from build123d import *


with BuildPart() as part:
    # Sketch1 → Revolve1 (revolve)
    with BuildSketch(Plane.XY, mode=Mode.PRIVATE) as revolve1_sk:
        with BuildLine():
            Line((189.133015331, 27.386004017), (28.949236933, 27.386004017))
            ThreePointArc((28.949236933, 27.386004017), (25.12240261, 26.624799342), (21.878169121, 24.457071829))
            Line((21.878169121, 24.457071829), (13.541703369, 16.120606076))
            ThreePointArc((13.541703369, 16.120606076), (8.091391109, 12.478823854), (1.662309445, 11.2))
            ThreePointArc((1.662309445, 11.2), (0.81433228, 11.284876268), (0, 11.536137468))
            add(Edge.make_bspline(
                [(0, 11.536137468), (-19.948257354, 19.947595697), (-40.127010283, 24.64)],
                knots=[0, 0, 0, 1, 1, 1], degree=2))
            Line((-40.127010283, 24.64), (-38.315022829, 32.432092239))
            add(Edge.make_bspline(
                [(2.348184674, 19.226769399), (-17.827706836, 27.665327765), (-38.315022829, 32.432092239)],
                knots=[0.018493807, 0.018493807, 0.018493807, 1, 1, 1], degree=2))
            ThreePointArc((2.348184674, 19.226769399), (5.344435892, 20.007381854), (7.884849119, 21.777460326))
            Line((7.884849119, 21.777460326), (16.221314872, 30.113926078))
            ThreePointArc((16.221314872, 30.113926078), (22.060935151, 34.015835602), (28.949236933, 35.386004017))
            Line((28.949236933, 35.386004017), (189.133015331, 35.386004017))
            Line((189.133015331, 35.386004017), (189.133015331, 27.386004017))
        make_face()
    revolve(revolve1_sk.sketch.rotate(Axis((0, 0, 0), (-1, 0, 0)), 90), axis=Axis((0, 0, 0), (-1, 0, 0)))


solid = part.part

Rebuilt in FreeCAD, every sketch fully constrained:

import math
import FreeCAD as App
import Part
import Sketcher
from FreeCAD import Vector
Q = App.Units.Quantity

doc = App.newDocument("Part")
body = doc.addObject("PartDesign::Body", "Body")

# Sketch on XY plane
sketch1 = body.newObject("Sketcher::SketchObject", "Sketch")
sketch1.AttachmentSupport = (doc.getObject("XY_Plane"), [""])
sketch1.MapMode = "FlatFace"
sketch1.addGeometry(Part.LineSegment(Vector(28.949237, 27.386004, 0), Vector(189.133015, 27.386004, 0)), False)
sketch1.addGeometry(Part.LineSegment(Vector(189.133015, 27.386004, 0), Vector(189.133015, 35.386004, 0)), False)
sketch1.addGeometry(Part.LineSegment(Vector(189.133015, 35.386004, 0), Vector(28.949237, 35.386004, 0)), False)
sketch1.addGeometry(Part.ArcOfCircle(Part.Circle(Vector(28.949237, 17.386004, 0), Vector(0, 0, 1), 18), math.radians(90), math.radians(135)), False)
sketch1.addGeometry(Part.LineSegment(Vector(16.221315, 30.113926, 0), Vector(7.884849, 21.77746, 0)), False)
sketch1.addGeometry(Part.ArcOfCircle(Part.Circle(Vector(1.662309, 28, 0), Vector(0, 0, 1), 8.8), math.radians(-85.529812), math.radians(-45)), False)
sketch1.addGeometry(Part.BSplineCurve([Vector(2.348185, 19.226769, 0), Vector(-17.827707, 27.665328, 0), Vector(-38.315023, 32.432092, 0)], [3, 3], [0.018493807, 1], False, 2, [1, 1, 1], False), False)
sketch1.addGeometry(Part.LineSegment(Vector(-38.315023, 32.432092, 0), Vector(-40.12701, 24.64, 0)), False)
sketch1.addGeometry(Part.BSplineCurve([Vector(0, 11.536137, 0), Vector(-19.948257, 19.947596, 0), Vector(-40.12701, 24.64, 0)], [3, 3], [0, 1], False, 2, [1, 1, 1], False), False)
sketch1.addGeometry(Part.ArcOfCircle(Part.Circle(Vector(1.662309, 15.4784, 0), Vector(0, 0, 1), 4.2784), math.radians(-112.863392), math.radians(-90)), False)
sketch1.addGeometry(Part.ArcOfCircle(Part.Circle(Vector(1.662309, 28, 0), Vector(0, 0, 1), 16.8), math.radians(-90), math.radians(-45)), False)
sketch1.addGeometry(Part.LineSegment(Vector(13.541703, 16.120606, 0), Vector(21.878169, 24.457072, 0)), False)
sketch1.addGeometry(Part.ArcOfCircle(Part.Circle(Vector(28.949237, 17.386004, 0), Vector(0, 0, 1), 10), math.radians(90), math.radians(135)), False)
sketch1.addConstraint(Sketcher.Constraint("Block", 6))
sketch1.addConstraint(Sketcher.Constraint("Block", 8))
sketch1.addConstraint(Sketcher.Constraint("Coincident", 0, 2, 1, 1))
sketch1.addConstraint(Sketcher.Constraint("Coincident", 1, 2, 2, 1))
sketch1.addConstraint(Sketcher.Constraint("Coincident", 2, 2, 3, 1))
sketch1.addConstraint(Sketcher.Constraint("Coincident", 3, 2, 4, 1))
sketch1.addConstraint(Sketcher.Constraint("Coincident", 4, 2, 5, 2))
sketch1.addConstraint(Sketcher.Constraint("Coincident", 5, 1, 6, 1))
sketch1.addConstraint(Sketcher.Constraint("Coincident", 6, 2, 7, 1))
sketch1.addConstraint(Sketcher.Constraint("Coincident", 7, 2, 8, 2))
sketch1.addConstraint(Sketcher.Constraint("Coincident", 8, 1, 9, 1))
sketch1.addConstraint(Sketcher.Constraint("Coincident", 9, 2, 10, 1))
sketch1.addConstraint(Sketcher.Constraint("Coincident", 10, 2, 11, 1))
sketch1.addConstraint(Sketcher.Constraint("Coincident", 11, 2, 12, 2))
sketch1.addConstraint(Sketcher.Constraint("Coincident", 12, 1, 0, 1))
sketch1.addConstraint(Sketcher.Constraint("Horizontal", 0))
sketch1.addConstraint(Sketcher.Constraint("Vertical", 1))
sketch1.addConstraint(Sketcher.Constraint("Horizontal", 2))
sketch1.addConstraint(Sketcher.Constraint("Coincident", 10, 3, 5, 3))
sketch1.addConstraint(Sketcher.Constraint("Coincident", 12, 3, 3, 3))
sketch1.addConstraint(Sketcher.Constraint("Radius", 3, Q("18 mm")))
sketch1.addConstraint(Sketcher.Constraint("Radius", 12, Q("10 mm")))
sketch1.addConstraint(Sketcher.Constraint("Radius", 5, Q("8.8 mm")))
sketch1.addConstraint(Sketcher.Constraint("Radius", 10, Q("16.8 mm")))
sketch1.addConstraint(Sketcher.Constraint("DistanceY", -1, 1, 5, 3, Q("28 mm")))
sketch1.addConstraint(Sketcher.Constraint("Radius", 9, Q("4.2784 mm")))
sketch1.addConstraint(Sketcher.Constraint("DistanceX", 0, 1, 0, 2, Q("160.183778 mm")))
sketch1.addConstraint(Sketcher.Constraint("DistanceX", 2, 2, 2, 1, Q("160.183778 mm")))
sketch1.addConstraint(Sketcher.Constraint("DistanceX", -1, 1, 4, 2, Q("7.884849 mm")))
sketch1.addConstraint(Sketcher.Constraint("DistanceX", -1, 1, 9, 2, Q("1.662309 mm")))
sketch1.addConstraint(Sketcher.Constraint("DistanceX", -1, 1, 11, 2, Q("21.878169 mm")))
sketch1.addConstraint(Sketcher.Constraint("DistanceY", -1, 1, 11, 2, Q("24.457072 mm")))
sketch1.addConstraint(Sketcher.Constraint("DistanceX", 12, 3, 0, 2, Q("160.183778 mm")))
sketch1.addConstraint(Sketcher.Constraint("DistanceX", 5, 1, 3, 2, Q("13.87313 mm")))
sketch1.addConstraint(Sketcher.Constraint("DistanceX", 5, 1, 10, 2, Q("11.193519 mm")))
sketch1.addConstraint(Sketcher.Constraint("DistanceX", -1, 1, 3, 3, Q("28.949237 mm")))
revolution = body.newObject("PartDesign::Revolution", "Revolution")
revolution.Profile = sketch1
revolution.ReferenceAxis = (sketch1, ["H_Axis"])
revolution.Angle = 360

doc.recompute()
